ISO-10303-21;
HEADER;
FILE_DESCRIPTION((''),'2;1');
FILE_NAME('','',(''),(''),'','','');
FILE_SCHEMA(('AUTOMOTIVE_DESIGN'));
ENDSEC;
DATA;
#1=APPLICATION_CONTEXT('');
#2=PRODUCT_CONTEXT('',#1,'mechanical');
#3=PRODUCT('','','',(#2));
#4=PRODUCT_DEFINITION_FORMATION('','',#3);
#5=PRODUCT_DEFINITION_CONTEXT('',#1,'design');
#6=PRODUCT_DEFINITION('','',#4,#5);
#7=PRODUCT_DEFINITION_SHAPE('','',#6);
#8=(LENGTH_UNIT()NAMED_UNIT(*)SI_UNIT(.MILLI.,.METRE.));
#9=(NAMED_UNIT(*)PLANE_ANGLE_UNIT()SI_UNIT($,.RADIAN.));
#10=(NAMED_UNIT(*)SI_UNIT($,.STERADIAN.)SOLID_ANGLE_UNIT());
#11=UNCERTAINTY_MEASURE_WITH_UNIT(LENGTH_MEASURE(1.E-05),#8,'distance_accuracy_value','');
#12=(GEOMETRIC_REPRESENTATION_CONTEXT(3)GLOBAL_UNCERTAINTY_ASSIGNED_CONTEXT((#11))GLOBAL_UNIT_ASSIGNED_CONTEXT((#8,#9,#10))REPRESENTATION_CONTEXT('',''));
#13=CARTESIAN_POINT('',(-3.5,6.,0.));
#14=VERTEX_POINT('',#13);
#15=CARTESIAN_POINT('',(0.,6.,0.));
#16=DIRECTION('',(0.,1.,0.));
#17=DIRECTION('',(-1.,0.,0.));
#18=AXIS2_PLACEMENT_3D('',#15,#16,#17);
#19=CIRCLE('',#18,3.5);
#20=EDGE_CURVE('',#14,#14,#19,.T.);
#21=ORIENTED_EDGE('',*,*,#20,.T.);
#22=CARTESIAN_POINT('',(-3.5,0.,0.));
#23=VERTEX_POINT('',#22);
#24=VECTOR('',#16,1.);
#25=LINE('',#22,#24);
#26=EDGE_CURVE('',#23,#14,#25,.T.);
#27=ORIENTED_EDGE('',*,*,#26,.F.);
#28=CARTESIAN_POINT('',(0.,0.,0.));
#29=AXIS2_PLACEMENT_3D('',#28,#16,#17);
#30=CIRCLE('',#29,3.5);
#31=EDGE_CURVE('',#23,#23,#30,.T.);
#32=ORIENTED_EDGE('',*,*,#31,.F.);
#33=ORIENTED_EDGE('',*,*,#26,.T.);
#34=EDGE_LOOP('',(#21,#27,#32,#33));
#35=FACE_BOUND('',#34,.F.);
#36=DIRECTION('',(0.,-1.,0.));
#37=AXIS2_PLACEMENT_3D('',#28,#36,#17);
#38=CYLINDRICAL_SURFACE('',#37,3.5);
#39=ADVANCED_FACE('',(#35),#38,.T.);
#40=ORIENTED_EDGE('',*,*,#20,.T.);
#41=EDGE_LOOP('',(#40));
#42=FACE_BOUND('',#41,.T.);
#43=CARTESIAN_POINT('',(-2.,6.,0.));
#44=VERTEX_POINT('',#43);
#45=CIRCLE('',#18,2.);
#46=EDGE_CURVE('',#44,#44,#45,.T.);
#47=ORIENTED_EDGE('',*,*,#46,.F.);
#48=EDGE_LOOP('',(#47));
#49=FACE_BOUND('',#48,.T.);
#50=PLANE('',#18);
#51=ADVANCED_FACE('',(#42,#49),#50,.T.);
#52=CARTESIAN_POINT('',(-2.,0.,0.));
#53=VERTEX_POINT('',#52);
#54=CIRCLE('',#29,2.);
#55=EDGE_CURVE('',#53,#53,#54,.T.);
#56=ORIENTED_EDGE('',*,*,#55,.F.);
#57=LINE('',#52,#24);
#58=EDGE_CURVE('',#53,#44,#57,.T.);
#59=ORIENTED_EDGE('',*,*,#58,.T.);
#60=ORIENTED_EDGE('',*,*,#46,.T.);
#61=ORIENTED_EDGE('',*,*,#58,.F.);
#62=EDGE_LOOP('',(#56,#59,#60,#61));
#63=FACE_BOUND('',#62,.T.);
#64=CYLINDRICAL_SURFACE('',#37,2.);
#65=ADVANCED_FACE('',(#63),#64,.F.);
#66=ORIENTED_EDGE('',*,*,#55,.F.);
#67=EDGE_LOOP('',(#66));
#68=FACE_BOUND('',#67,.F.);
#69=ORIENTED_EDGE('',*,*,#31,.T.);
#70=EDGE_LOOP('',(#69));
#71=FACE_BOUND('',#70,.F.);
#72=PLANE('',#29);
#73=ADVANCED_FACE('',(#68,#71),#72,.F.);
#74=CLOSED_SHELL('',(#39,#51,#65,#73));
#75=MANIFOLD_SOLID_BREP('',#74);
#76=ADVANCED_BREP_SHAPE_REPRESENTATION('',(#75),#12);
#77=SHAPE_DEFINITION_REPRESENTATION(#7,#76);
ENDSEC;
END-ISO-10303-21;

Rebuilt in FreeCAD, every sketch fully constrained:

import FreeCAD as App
import Part
import Sketcher

doc = App.newDocument("Part")
body = doc.addObject("PartDesign::Body", "Body")

# Sketch on XZ plane
sketch1 = body.newObject("Sketcher::SketchObject", "Sketch")
sketch1.AttachmentSupport = (doc.getObject("XZ_Plane"), [""])
sketch1.MapMode = "FlatFace"
sketch1.addGeometry([
    Part.Circle(App.Vector(0, 0, 0), App.Vector(0, 0, 1), 3.5),
    Part.Circle(App.Vector(0, 0, 0), App.Vector(0, 0, 1), 2),
], False)
sketch1.addConstraint([
    Sketcher.Constraint("Coincident", 0, 3, -1, 1),
    Sketcher.Constraint("Coincident", 1, 3, -1, 1),
    Sketcher.Constraint("Diameter", 0, 7.0),
    Sketcher.Constraint("Diameter", 1, 4.0),
])
pad1 = body.newObject("PartDesign::Pad", "Pad")
pad1.Profile = sketch1
pad1.Length = 6
pad1.Reversed = True

doc.recompute()
